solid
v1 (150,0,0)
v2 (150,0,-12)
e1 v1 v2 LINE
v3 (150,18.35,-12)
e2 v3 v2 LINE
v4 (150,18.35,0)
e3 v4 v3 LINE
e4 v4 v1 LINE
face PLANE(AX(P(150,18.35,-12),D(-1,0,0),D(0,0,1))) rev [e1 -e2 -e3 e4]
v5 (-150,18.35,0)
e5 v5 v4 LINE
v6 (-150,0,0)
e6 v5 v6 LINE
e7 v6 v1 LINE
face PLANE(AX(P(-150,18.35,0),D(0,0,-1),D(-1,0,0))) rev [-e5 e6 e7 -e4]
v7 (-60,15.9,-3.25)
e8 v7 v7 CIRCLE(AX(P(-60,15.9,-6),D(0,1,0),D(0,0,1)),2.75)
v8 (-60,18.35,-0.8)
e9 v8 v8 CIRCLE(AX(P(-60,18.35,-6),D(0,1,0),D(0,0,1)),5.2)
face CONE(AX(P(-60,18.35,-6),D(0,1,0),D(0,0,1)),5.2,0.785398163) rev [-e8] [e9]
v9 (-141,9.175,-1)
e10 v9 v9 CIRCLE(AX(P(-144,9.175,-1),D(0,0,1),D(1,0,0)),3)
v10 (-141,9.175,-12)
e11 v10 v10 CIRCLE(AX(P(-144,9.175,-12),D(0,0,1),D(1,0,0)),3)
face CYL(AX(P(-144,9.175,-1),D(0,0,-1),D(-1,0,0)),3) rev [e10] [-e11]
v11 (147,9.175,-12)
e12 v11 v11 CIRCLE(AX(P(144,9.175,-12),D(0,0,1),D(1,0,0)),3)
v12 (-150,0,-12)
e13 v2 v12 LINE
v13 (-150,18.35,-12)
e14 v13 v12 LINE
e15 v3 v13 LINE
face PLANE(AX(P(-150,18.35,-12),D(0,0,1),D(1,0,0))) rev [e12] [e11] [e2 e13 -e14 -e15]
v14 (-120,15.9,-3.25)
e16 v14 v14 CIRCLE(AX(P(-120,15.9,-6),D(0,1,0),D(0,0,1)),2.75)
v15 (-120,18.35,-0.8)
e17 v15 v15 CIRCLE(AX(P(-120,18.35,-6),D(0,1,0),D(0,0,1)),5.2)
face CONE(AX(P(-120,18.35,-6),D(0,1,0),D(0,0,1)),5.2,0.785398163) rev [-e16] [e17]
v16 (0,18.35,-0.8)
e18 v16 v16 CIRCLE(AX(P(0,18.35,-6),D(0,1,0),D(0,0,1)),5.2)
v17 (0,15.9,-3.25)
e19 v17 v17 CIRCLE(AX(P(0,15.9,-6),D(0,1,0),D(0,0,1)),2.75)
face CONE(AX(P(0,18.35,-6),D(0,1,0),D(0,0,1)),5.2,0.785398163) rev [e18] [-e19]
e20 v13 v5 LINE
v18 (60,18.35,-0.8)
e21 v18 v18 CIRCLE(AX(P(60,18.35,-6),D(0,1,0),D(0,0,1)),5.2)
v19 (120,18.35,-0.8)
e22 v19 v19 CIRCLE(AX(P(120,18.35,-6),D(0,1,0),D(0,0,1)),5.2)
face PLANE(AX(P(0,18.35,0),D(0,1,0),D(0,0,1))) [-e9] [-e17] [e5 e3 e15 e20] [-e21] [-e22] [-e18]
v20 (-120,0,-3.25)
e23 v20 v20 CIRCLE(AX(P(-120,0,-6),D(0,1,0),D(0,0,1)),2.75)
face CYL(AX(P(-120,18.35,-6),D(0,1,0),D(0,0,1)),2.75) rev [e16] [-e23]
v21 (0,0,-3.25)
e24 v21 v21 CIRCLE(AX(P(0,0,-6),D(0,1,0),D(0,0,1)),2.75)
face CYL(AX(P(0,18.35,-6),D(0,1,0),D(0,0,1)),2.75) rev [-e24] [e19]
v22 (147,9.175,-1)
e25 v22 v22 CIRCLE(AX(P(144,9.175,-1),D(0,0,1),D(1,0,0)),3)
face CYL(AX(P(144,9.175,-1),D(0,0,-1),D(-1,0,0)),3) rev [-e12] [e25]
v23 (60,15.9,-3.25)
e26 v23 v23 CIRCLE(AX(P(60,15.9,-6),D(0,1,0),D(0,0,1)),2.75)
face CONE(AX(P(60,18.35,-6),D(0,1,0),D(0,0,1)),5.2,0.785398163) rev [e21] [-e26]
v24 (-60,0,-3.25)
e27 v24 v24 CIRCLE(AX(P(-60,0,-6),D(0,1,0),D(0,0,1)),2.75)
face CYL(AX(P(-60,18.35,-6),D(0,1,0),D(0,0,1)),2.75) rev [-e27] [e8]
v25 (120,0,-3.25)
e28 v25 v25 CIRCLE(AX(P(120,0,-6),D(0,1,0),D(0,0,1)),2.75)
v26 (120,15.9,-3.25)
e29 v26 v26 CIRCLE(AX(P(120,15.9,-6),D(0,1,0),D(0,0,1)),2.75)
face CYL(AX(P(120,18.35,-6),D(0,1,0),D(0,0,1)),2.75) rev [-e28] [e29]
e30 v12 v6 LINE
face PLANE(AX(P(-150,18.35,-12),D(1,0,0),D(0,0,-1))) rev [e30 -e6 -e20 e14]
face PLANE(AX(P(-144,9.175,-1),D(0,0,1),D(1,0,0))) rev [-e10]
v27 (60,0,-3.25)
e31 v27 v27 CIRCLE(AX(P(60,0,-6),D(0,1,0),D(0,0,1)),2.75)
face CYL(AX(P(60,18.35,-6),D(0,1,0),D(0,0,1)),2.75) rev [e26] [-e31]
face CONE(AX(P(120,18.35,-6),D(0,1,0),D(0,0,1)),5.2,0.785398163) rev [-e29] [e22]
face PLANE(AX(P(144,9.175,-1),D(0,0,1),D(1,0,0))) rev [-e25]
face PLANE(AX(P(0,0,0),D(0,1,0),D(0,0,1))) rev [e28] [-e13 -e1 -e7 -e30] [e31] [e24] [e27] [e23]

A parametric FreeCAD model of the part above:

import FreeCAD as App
import Part
import Sketcher
Q = App.Units.Quantity


def add_polygon(sketch, points):
    """Adds a closed chain of lines whose ends are joined by coincident constraints."""
    first, n = sketch.GeometryCount, len(points)
    for a, b in zip(points, points[1:] + points[:1]):
        sketch.addGeometry(Part.LineSegment(App.Vector(*a, 0), App.Vector(*b, 0)), False)
    for i in range(n):
        sketch.addConstraint(Sketcher.Constraint("Coincident", first + i, 2, first + (i + 1) % n, 1))

doc = App.newDocument("Part")
body = doc.addObject("PartDesign::Body", "Body")

sketch1 = body.newObject("Sketcher::SketchObject", "Sketch")
sketch1.AttachmentSupport = (doc.getObject("XZ_Plane"), [""])
sketch1.MapMode = "FlatFace"
add_polygon(sketch1, [(-150, -12), (-150, 0), (150, 0), (150, -12)])
sketch1.addConstraint([
    Sketcher.Constraint("Vertical", 0),
    Sketcher.Constraint("Horizontal", 1),
    Sketcher.Constraint("Vertical", 2),
    Sketcher.Constraint("Horizontal", 3),
    Sketcher.Constraint("Symmetric", 0, 2, 1, 2, -1, 1),
    Sketcher.Constraint("DistanceX", 1, 1, 1, 2, Q("300 mm")),
    Sketcher.Constraint("DistanceY", 0, 1, 0, 2, Q("12 mm")),
])
pad1 = body.newObject("PartDesign::Pad", "Pad")
pad1.Profile = sketch1
pad1.Length = 18.35
pad1.Reversed = True

sketch2 = body.newObject("Sketcher::SketchObject", "Sketch001")
sketch2.AttachmentSupport = (doc.getObject("XZ_Plane"), [""])
sketch2.MapMode = "FlatFace"
sketch2.AttachmentOffset = App.Placement(App.Vector(0, 0, -18.35), App.Rotation())
sketch2.addGeometry(Part.Circle(App.Vector(0, -6, 0), App.Vector(0, 0, 1), 2.8), False)
sketch2.addConstraint([
    Sketcher.Constraint("PointOnObject", 0, 3, -2),
    Sketcher.Constraint("Diameter", 0, Q("5.5 mm")),
    Sketcher.Constraint("DistanceY", 0, 3, -1, 1, Q("6 mm")),
])
doc.recompute()
hole = body.newObject("PartDesign::Hole", "Hole")
hole.Profile = sketch2
hole.ThreadType = "None"
hole.Diameter = 5.5
hole.DepthType = "ThroughAll"
hole.HoleCutType = "Countersink"
hole.HoleCutDiameter = 10.4
hole.HoleCutCountersinkAngle = 90
hole.Reversed = True
doc.recompute()

linearpattern = body.newObject("PartDesign::LinearPattern", "LinearPattern")
linearpattern.Originals = [hole]
linearpattern.Direction = (doc.getObject("X_Axis"), [""])
linearpattern.Mode = "offset"
linearpattern.Offset = 60
linearpattern.Occurrences = 3
linearpattern.Reversed = True
body.Tip = linearpattern
doc.recompute()

linearpattern2 = body.newObject("PartDesign::LinearPattern", "LinearPattern001")
linearpattern2.Originals = [hole]
linearpattern2.Direction = (doc.getObject("X_Axis"), [""])
linearpattern2.Mode = "offset"
linearpattern2.Offset = 60
linearpattern2.Occurrences = 3
body.Tip = linearpattern2

sketch3 = body.newObject("Sketcher::SketchObject", "Sketch002")
sketch3.AttachmentSupport = (doc.getObject("XY_Plane"), [""])
sketch3.MapMode = "FlatFace"
sketch3.AttachmentOffset = App.Placement(App.Vector(0, 0, -12), App.Rotation())
sketch3.addGeometry([
    Part.Circle(App.Vector(-144, 9.2, 0), App.Vector(0, 0, 1), 3),
    Part.Circle(App.Vector(144, 9.2, 0), App.Vector(0, 0, 1), 3),
], False)
sketch3.addConstraint([
    Sketcher.Constraint("Equal", 0, 1),
    Sketcher.Constraint("Symmetric", 0, 3, 1, 3, -2),
    Sketcher.Constraint("Diameter", 0, Q("6 mm")),
    Sketcher.Constraint("DistanceX", 0, 3, -1, 1, Q("144 mm")),
    Sketcher.Constraint("DistanceY", -1, 1, 0, 3, Q("9.175 mm")),
])
pocket1 = body.newObject("PartDesign::Pocket", "Pocket")
pocket1.Profile = sketch3
pocket1.Length = 11
pocket1.Reversed = True

doc.recompute()
